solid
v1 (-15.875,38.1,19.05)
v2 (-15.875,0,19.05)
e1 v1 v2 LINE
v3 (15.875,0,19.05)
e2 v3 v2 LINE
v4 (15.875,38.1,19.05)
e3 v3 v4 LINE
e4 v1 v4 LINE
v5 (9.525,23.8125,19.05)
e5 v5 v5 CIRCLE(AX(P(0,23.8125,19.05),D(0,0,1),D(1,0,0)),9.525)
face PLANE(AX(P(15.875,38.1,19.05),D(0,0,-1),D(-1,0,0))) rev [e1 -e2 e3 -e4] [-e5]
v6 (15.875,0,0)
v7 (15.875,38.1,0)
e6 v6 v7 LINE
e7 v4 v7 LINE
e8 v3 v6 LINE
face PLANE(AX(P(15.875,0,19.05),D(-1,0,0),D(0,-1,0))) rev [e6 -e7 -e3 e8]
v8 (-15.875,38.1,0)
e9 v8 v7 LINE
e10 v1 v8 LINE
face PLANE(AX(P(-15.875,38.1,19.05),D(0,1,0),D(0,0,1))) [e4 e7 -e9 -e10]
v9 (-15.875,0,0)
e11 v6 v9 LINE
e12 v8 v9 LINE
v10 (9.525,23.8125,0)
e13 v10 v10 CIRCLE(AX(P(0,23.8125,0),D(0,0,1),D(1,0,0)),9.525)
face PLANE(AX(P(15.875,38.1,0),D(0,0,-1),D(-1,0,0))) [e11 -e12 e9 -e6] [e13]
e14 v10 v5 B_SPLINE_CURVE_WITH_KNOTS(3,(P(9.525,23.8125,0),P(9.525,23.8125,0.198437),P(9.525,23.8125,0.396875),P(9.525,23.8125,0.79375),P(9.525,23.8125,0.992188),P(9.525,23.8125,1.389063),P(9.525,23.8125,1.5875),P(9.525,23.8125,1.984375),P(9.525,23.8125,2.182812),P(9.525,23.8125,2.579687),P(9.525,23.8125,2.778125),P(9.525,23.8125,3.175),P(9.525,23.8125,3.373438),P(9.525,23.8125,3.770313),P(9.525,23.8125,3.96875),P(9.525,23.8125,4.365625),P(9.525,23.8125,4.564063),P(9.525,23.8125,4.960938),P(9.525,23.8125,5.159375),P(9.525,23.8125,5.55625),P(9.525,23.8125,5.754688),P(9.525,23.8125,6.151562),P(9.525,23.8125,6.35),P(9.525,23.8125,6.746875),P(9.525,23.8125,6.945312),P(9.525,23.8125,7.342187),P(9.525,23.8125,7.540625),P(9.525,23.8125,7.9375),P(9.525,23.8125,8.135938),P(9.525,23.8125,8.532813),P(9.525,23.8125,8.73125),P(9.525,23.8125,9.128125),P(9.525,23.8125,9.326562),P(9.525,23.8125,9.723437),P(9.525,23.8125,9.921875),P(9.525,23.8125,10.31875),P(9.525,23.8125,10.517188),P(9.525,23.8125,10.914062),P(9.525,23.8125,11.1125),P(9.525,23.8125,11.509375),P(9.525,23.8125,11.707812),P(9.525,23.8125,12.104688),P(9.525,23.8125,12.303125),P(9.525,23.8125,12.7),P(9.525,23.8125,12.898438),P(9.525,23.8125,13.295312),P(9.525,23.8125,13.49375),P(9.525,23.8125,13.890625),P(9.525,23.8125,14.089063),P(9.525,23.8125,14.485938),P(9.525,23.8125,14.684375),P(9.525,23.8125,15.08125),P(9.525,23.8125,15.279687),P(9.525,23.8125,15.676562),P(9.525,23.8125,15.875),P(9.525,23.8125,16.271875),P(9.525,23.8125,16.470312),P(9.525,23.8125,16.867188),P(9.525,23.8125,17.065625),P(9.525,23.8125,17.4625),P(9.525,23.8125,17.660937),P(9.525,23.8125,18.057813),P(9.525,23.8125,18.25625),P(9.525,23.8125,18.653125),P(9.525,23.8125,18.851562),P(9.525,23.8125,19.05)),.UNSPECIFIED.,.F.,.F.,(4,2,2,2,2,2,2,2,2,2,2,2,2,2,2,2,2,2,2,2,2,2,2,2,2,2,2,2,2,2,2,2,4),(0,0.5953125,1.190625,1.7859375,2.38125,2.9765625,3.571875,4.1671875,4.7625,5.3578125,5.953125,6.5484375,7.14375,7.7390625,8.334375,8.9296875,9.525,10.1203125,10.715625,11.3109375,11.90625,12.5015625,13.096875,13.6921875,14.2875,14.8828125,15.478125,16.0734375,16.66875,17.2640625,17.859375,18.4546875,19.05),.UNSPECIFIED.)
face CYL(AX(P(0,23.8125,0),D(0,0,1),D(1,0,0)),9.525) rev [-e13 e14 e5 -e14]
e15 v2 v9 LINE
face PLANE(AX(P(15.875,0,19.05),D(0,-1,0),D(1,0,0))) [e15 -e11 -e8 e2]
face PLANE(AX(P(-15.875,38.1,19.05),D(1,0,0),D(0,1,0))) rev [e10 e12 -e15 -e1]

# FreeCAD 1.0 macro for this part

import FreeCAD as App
import Part
import Sketcher
from FreeCAD import Vector
Q = App.Units.Quantity


def add_polygon(sketch, points):
    """Adds a closed chain of lines whose ends are joined by coincident constraints."""
    first, n = sketch.GeometryCount, len(points)
    for a, b in zip(points, points[1:] + points[:1]):
        sketch.addGeometry(Part.LineSegment(App.Vector(*a, 0), App.Vector(*b, 0)), False)
    for i in range(n):
        sketch.addConstraint(Sketcher.Constraint("Coincident", first + i, 2, first + (i + 1) % n, 1))

doc = App.newDocument("Part")
params = doc.addObject("Spreadsheet::Sheet", "Params")
for row, (alias, value) in enumerate([
    ("sketch1_height", "1.5 in"),
    ("sketch1_width", "1.25 in"),
    ("pad1_length", "0.75 in"),
    ("sketch2_diameter", "0.75 in"),
], start=1):
    params.set(f"A{row}", alias)
    params.set(f"B{row}", "=" + value)
    params.setAlias(f"B{row}", alias)

body = doc.addObject("PartDesign::Body", "Body")

sketch1 = doc.addObject("Sketcher::SketchObject", "Sketch")
body.addObject(sketch1)
sketch1.AttachmentSupport = (doc.XY_Plane, [""])
sketch1.MapMode = "FlatFace"
add_polygon(sketch1, [(-15.875, 38.1), (-15.875, 0), (15.875, 0), (15.875, 38.1)])
sketch1.addConstraint(Sketcher.Constraint("Vertical", 0))
sketch1.addConstraint(Sketcher.Constraint("Horizontal", 1))
sketch1.addConstraint(Sketcher.Constraint("Vertical", 2))
sketch1.addConstraint(Sketcher.Constraint("Horizontal", 3))
sketch1.addConstraint(Sketcher.Constraint("Symmetric", 0, 2, 1, 2, -1, 1))
sketch1.addConstraint(Sketcher.Constraint("DistanceY", 0, 2, 0, 1, Q("1.5 in")))
sketch1.addConstraint(Sketcher.Constraint("DistanceX", 1, 1, 1, 2, Q("1.25 in")))
sketch1.setExpression("Constraints[9]", "Params.sketch1_height")
sketch1.setExpression("Constraints[10]", "Params.sketch1_width")
pad1 = doc.addObject("PartDesign::Pad", "Pad")
body.addObject(pad1)
pad1.Profile = sketch1
pad1.setExpression("Length", "Params.pad1_length")

sketch2 = doc.addObject("Sketcher::SketchObject", "Sketch001")
body.addObject(sketch2)
sketch2.AttachmentSupport = (doc.XY_Plane, [""])
sketch2.MapMode = "FlatFace"
sketch2.AttachmentOffset = App.Placement(Vector(0, 0, 0.75 * 25.4), App.Rotation())
sketch2.addGeometry(Part.Circle(Vector(0, 23.8125, 0), Vector(0, 0, 1), 9.525), False)
sketch2.addConstraint(Sketcher.Constraint("PointOnObject", 0, 3, -2))
sketch2.addConstraint(Sketcher.Constraint("Diameter", 0, Q("0.75 in")))
sketch2.addConstraint(Sketcher.Constraint("DistanceY", -1, 1, 0, 3, Q("0.9375 in")))
sketch2.setExpression("Constraints[1]", "Params.sketch2_diameter")
pocket1 = doc.addObject("PartDesign::Pocket", "Pocket")
body.addObject(pocket1)
pocket1.Profile = sketch2
pocket1.Type = "ThroughAll"

doc.recompute()
